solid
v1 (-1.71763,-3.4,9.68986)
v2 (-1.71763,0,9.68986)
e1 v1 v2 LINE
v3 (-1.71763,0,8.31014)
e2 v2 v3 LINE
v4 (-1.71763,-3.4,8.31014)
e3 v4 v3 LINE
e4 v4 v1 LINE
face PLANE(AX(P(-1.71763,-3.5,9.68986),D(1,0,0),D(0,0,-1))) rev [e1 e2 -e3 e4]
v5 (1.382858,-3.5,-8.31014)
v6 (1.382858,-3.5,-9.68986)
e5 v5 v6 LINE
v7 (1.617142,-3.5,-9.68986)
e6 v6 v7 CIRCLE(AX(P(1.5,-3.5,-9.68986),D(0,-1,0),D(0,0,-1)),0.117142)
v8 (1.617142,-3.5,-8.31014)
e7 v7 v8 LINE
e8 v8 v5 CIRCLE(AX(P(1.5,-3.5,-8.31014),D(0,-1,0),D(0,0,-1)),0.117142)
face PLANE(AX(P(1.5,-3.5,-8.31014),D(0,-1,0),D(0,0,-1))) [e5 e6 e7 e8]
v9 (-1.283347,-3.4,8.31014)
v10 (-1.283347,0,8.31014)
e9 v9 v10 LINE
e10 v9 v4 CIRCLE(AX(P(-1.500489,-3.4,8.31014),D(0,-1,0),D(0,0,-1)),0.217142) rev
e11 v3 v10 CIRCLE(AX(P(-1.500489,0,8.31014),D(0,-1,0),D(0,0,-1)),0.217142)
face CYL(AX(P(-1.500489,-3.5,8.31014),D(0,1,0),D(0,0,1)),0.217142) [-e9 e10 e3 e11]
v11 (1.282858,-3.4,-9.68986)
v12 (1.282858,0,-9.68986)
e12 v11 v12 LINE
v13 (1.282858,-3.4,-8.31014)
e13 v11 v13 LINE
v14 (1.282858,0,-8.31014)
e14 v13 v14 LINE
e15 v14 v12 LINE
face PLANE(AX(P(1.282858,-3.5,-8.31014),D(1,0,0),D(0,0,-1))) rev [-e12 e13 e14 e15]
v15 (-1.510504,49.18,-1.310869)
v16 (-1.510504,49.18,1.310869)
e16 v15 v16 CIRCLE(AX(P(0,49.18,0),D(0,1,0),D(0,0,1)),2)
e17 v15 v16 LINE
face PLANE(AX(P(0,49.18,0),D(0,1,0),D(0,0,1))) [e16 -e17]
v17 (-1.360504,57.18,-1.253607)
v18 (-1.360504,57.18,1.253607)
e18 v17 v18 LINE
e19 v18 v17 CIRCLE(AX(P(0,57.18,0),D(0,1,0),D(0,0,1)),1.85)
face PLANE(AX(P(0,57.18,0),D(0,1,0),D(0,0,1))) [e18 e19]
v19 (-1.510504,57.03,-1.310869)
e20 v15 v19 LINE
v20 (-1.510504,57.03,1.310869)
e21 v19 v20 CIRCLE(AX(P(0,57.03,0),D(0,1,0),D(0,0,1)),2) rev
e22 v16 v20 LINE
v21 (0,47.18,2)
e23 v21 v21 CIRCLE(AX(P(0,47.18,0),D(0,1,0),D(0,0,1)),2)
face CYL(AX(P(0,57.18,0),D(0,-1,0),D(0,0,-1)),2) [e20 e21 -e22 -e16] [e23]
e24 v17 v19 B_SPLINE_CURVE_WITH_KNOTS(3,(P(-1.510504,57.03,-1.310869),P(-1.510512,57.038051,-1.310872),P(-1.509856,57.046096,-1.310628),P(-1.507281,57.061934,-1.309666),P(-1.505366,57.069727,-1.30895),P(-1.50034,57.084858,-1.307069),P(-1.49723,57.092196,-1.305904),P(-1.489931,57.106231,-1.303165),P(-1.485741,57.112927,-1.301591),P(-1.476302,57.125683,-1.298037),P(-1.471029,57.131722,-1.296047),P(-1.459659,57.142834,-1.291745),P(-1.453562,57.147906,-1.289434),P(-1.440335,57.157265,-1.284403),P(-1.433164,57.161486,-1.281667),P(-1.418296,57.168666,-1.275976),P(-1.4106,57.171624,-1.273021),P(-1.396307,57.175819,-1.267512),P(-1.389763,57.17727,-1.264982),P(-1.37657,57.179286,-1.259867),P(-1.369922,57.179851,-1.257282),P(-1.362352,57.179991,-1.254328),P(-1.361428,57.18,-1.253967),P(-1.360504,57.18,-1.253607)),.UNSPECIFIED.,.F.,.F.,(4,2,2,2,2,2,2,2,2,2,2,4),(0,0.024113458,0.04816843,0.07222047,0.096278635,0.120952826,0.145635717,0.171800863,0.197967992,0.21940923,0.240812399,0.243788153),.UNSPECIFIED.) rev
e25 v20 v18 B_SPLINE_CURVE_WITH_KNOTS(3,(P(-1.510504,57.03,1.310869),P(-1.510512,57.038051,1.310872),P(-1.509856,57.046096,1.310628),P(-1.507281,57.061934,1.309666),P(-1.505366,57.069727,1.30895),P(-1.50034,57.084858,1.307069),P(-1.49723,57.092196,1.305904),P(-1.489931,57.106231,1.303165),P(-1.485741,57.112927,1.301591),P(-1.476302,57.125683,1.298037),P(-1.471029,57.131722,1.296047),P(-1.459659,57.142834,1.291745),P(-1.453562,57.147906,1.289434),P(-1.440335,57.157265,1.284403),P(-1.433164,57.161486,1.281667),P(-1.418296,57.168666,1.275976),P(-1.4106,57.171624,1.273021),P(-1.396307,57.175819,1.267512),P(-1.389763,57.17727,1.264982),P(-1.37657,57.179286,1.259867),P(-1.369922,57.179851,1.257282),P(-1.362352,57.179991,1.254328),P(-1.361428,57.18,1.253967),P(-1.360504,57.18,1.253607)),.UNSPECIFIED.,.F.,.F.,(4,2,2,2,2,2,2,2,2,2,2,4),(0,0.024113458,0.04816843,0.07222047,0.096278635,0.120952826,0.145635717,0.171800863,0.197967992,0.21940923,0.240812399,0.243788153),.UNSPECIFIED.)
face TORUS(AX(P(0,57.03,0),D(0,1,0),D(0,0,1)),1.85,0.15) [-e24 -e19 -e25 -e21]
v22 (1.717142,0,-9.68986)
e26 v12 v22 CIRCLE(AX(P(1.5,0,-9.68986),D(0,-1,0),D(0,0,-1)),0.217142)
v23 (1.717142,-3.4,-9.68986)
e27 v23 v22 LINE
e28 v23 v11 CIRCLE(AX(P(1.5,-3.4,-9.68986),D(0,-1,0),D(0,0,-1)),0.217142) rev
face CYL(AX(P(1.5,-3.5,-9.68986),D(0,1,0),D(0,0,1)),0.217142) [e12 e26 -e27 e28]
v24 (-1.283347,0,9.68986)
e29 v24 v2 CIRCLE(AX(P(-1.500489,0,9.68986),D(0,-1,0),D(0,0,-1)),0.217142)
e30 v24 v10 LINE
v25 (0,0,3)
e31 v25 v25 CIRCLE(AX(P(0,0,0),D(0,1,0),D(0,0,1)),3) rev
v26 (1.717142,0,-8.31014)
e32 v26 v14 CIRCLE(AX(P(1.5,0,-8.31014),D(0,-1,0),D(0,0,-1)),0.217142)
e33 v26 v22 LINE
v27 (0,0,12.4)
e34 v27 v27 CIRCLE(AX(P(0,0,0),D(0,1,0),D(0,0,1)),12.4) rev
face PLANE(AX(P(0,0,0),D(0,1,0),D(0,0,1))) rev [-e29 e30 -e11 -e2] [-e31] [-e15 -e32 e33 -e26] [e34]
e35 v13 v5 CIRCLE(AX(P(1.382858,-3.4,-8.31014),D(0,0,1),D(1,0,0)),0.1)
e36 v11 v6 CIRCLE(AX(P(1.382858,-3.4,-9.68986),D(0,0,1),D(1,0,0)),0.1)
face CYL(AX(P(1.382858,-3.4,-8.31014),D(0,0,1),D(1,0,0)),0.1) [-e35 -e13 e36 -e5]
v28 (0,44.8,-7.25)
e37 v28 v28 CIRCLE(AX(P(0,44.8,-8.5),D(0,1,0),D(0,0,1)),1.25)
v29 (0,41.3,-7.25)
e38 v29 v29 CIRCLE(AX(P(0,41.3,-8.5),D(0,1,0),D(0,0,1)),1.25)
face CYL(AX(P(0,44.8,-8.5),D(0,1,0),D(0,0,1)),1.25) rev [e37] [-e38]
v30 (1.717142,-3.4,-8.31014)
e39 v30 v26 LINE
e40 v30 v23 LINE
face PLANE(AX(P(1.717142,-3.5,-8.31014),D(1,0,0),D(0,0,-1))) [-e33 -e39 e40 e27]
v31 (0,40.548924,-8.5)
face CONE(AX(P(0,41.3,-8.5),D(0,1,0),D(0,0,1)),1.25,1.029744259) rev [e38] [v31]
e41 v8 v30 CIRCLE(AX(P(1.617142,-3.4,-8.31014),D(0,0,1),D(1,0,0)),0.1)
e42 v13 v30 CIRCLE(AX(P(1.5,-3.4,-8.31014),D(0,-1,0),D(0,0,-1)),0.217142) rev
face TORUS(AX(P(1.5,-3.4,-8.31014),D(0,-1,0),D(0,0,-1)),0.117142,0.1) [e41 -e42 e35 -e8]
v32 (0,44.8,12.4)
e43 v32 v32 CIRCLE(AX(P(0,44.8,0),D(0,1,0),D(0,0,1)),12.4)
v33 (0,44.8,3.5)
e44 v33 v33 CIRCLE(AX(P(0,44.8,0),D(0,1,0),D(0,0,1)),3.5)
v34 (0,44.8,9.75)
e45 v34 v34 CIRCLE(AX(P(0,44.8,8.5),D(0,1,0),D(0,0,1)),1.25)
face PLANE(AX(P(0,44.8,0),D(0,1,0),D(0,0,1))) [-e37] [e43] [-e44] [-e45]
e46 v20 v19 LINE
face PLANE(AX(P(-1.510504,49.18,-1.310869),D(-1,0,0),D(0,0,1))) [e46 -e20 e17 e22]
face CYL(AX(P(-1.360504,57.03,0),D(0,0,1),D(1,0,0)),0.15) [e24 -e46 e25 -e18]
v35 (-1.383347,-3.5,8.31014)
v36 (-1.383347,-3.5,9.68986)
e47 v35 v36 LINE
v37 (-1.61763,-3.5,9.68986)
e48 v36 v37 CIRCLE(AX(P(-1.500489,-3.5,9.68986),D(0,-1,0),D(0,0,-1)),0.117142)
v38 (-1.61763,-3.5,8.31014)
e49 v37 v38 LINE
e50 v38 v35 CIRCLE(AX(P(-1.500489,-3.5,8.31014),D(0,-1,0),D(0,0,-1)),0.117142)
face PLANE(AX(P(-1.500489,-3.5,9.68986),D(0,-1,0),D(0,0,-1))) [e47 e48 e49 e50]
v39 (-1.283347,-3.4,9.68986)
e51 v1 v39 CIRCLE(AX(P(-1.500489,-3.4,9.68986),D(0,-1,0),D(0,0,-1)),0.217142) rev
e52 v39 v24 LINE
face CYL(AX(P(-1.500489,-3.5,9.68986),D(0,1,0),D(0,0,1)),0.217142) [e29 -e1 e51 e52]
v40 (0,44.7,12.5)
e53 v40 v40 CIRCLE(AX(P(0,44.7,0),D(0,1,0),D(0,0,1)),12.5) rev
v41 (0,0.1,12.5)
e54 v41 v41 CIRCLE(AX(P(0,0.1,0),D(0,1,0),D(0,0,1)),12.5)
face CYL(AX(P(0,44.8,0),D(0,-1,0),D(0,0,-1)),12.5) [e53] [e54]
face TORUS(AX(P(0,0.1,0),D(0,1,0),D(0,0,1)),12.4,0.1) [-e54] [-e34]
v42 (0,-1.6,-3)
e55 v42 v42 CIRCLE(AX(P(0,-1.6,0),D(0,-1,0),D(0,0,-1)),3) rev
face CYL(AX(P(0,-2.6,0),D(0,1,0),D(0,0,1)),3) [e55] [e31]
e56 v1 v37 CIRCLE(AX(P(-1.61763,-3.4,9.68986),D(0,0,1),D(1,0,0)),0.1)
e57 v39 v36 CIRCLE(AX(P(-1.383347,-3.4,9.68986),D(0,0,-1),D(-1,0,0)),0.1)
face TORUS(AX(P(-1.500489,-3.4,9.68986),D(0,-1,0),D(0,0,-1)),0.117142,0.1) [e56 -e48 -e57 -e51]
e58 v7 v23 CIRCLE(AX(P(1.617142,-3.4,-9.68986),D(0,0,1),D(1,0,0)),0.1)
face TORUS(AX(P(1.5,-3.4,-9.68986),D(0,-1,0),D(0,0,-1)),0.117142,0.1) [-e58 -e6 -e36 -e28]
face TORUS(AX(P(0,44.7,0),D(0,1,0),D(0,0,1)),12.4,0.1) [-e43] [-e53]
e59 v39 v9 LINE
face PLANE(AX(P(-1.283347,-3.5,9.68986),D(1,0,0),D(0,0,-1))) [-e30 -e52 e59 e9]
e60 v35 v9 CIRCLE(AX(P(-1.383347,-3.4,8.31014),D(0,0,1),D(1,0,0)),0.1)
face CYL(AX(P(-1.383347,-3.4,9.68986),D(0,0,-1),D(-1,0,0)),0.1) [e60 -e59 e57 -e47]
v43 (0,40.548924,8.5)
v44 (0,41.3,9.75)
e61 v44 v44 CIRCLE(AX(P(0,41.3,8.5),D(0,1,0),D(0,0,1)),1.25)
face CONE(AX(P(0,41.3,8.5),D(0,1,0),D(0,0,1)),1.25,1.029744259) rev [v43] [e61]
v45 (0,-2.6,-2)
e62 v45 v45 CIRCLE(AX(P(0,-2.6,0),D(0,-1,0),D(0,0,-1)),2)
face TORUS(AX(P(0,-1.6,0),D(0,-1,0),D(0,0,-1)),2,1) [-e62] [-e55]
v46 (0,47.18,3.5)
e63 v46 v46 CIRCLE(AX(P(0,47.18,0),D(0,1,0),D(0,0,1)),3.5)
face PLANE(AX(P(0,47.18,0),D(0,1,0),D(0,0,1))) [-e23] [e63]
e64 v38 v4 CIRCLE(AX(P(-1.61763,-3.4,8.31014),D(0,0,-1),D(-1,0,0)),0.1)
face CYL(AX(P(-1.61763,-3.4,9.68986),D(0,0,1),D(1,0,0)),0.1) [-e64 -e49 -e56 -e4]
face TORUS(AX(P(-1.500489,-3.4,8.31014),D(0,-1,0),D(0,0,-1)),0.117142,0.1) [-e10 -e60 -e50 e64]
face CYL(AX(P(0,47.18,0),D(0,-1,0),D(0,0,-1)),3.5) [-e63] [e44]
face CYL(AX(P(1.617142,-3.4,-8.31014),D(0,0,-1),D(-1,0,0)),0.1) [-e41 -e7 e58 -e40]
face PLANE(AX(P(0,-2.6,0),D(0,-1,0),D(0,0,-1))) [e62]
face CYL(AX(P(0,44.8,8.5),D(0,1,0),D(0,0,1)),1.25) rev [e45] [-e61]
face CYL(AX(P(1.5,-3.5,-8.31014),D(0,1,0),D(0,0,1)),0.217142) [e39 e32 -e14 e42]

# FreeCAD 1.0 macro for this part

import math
import FreeCAD as App
import Part
import Sketcher

V = App.Vector


def edges_at(feature, points):
    """Names of the edges that pass closest to the given points."""
    edges = feature.Shape.Edges
    near = lambda p: min(range(len(edges)), key=lambda i: edges[i].distToShape(Part.Vertex(*p))[0])
    return sorted({f"Edge{near(p) + 1}" for p in points})

doc = App.newDocument("Part")
body = doc.addObject("PartDesign::Body", "Body")

# Sketch on XZ plane
sketch1 = body.newObject("Sketcher::SketchObject", "Sketch")
sketch1.AttachmentSupport = (doc.getObject("XZ_Plane"), [""])
sketch1.MapMode = "FlatFace"
sketch1.addGeometry(Part.Circle(V(0, 0, 0), V(0, 0, 1), 12), False)
sketch1.addConstraint([
    Sketcher.Constraint("Coincident", 0, 3, -1, 1),
    Sketcher.Constraint("Diameter", 0, 25.0),
])
pad1 = body.newObject("PartDesign::Pad", "Pad")
pad1.Profile = sketch1
pad1.Length = 44.8
pad1.Reversed = True

# Sketch on XZ plane
sketch2 = body.newObject("Sketcher::SketchObject", "Sketch001")
sketch2.AttachmentSupport = (doc.getObject("XZ_Plane"), [""])
sketch2.MapMode = "FlatFace"
sketch2.addGeometry([
    Part.LineSegment(V(-1.28, 8.31, 0), V(-1.28, 9.69, 0)),  # 0
    Part.ArcOfCircle(Part.Circle(V(-1.5, 9.69, 0), V(0, 0, 1), 0.22), math.radians(0), math.radians(180)),  # 1
    Part.LineSegment(V(-1.72, 9.69, 0), V(-1.72, 8.31, 0)),  # 2
    Part.ArcOfCircle(Part.Circle(V(-1.5, 8.31, 0), V(0, 0, 1), 0.22), math.radians(-180), math.radians(0)),  # 3
    Part.LineSegment(V(1.72, -9.69, 0), V(1.72, -8.31, 0)),  # 4
    Part.ArcOfCircle(Part.Circle(V(1.5, -8.31, 0), V(0, 0, 1), 0.22), math.radians(0), math.radians(180)),  # 5
    Part.LineSegment(V(1.28, -8.31, 0), V(1.28, -9.69, 0)),  # 6
    Part.ArcOfCircle(Part.Circle(V(1.5, -9.69, 0), V(0, 0, 1), 0.22), math.radians(-180), math.radians(0)),  # 7
], False)
sketch2.addConstraint([
    Sketcher.Constraint("Tangent", 0, 2, 1, 1),
    Sketcher.Constraint("Tangent", 1, 2, 2, 1),
    Sketcher.Constraint("Tangent", 2, 2, 3, 1),
    Sketcher.Constraint("Tangent", 3, 2, 0, 1),
    Sketcher.Constraint("Tangent", 4, 2, 5, 1),
    Sketcher.Constraint("Tangent", 5, 2, 6, 1),
    Sketcher.Constraint("Tangent", 6, 2, 7, 1),
    Sketcher.Constraint("Tangent", 7, 2, 4, 1),
    Sketcher.Constraint("Vertical", 0),
    Sketcher.Constraint("Vertical", 2),
    Sketcher.Constraint("Vertical", 4),
    Sketcher.Constraint("Vertical", 6),
    Sketcher.Constraint("Equal", 3, 5),
    Sketcher.Constraint("Equal", 2, 4),
    Sketcher.Constraint("DistanceY", 5, 3, 1, 3, 18.0),
    Sketcher.Constraint("DistanceX", -1, 1, 5, 3, 1.5),
    Sketcher.Constraint("Radius", 1, 0.217142),
    Sketcher.Constraint("DistanceY", 0, 1, 0, 2, 1.379721),
    Sketcher.Constraint("DistanceX", 1, 3, -1, 1, 1.500489),
    Sketcher.Constraint("DistanceY", -1, 1, 1, 3, 9.68986),
])
pad2 = body.newObject("PartDesign::Pad", "Pad001")
pad2.Profile = sketch2
pad2.Length = 3.5
doc.recompute()

fillet = body.newObject("PartDesign::Fillet", "Fillet")
fillet.Base = (pad2, edges_at(pad2, [
    (1.717, -3.5, -9),
    (1.5, -3.5, -8.093),
    (1.283, -3.5, -9),
    (1.5, -3.5, -9.907),
    (-1.283, -3.5, 9),
    (-1.5, -3.5, 9.907),
    (-1.718, -3.5, 9),
    (-1.5, -3.5, 8.093),
    (0, 0, -12.5),
    (0, 44.8, -12.5),
]))
fillet.Radius = 0.1

# Sketch on XZ plane
sketch3 = body.newObject("Sketcher::SketchObject", "Sketch002")
sketch3.AttachmentSupport = (doc.getObject("XZ_Plane"), [""])
sketch3.MapMode = "FlatFace"
sketch3.addGeometry(Part.Circle(V(0, 0, 0), V(0, 0, 1), 3), False)
sketch3.addConstraint([
    Sketcher.Constraint("Coincident", 0, 3, -1, 1),
    Sketcher.Constraint("Diameter", 0, 6.0),
])
pad3 = body.newObject("PartDesign::Pad", "Pad002")
pad3.Profile = sketch3
pad3.Length = 2.6
doc.recompute()

fillet2 = body.newObject("PartDesign::Fillet", "Fillet001")
fillet2.Base = (pad3, edges_at(pad3, [(0, -2.6, -3)]))
fillet2.Radius = 1

# Sketch on XZ plane
sketch4 = body.newObject("Sketcher::SketchObject", "Sketch003")
sketch4.AttachmentSupport = (doc.getObject("XZ_Plane"), [""])
sketch4.MapMode = "FlatFace"
sketch4.AttachmentOffset = App.Placement(V(0, 0, -44.8), App.Rotation())
sketch4.addGeometry([
    Part.Circle(V(0, 8.5, 0), V(0, 0, 1), 1.2),
    Part.Circle(V(0, -8.5, 0), V(0, 0, 1), 1.2),
], False)
sketch4.addConstraint([
    Sketcher.Constraint("Equal", 0, 1),
    Sketcher.Constraint("Symmetric", 0, 3, 1, 3, -1, 1),
    Sketcher.Constraint("PointOnObject", 0, 3, -2),
    Sketcher.Constraint("Diameter", 0, 2.5),
    Sketcher.Constraint("DistanceY", 1, 3, 0, 3, 17.0),
])
doc.recompute()
hole = body.newObject("PartDesign::Hole", "Hole")
hole.Profile = sketch4
hole.ThreadType = "None"
hole.Diameter = 2.5
hole.DepthType = "Dimension"
hole.Depth = 3.5
hole.DrillPoint = "Angled"
hole.DrillPointAngle = 118
hole.Reversed = True

# Sketch on XZ plane
sketch5 = body.newObject("Sketcher::SketchObject", "Sketch004")
sketch5.AttachmentSupport = (doc.getObject("XZ_Plane"), [""])
sketch5.MapMode = "FlatFace"
sketch5.AttachmentOffset = App.Placement(V(0, 0, -44.8), App.Rotation())
sketch5.addGeometry([
    Part.Circle(V(0, 0, 0), V(0, 0, 1), 3.5),
    Part.Circle(V(0, 0, 0), V(0, 0, 1), 2),
], False)
sketch5.addConstraint([
    Sketcher.Constraint("Coincident", 0, 3, -1, 1),
    Sketcher.Constraint("Coincident", 1, 3, -1, 1),
    Sketcher.Constraint("Diameter", 0, 7.0),
    Sketcher.Constraint("Diameter", 1, 4.0),
])
pad4 = body.newObject("PartDesign::Pad", "Pad003")
pad4.Profile = sketch5
pad4.Length = 2.38
pad4.Reversed = True

# Sketch on XZ plane
sketch6 = body.newObject("Sketcher::SketchObject", "Sketch005")
sketch6.AttachmentSupport = (doc.getObject("XZ_Plane"), [""])
sketch6.MapMode = "FlatFace"
sketch6.AttachmentOffset = App.Placement(V(0, 0, -44.8), App.Rotation())
sketch6.addGeometry(Part.Circle(V(0, 0, 0), V(0, 0, 1), 2), False)
sketch6.addConstraint([
    Sketcher.Constraint("Coincident", 0, 3, -1, 1),
    Sketcher.Constraint("Diameter", 0, 4.0),
])
pad5 = body.newObject("PartDesign::Pad", "Pad004")
pad5.Profile = sketch6
pad5.Length = 12.38
pad5.Reversed = True

# Sketch on XZ plane
sketch7 = body.newObject("Sketcher::SketchObject", "Sketch006")
sketch7.AttachmentSupport = (doc.getObject("XZ_Plane"), [""])
sketch7.MapMode = "FlatFace"
sketch7.AttachmentOffset = App.Placement(V(0, 0, -49.18), App.Rotation())
sketch7.addGeometry([
    Part.LineSegment(V(-1.5, 1.3, 0), V(-1.5, -1.3, 0)),
    Part.ArcOfCircle(Part.Circle(V(0, 0, 0), V(0, 0, 1), 2), math.radians(139), math.radians(221)),
], False)
sketch7.addConstraint([
    Sketcher.Constraint("Coincident", 0, 1, 1, 1),
    Sketcher.Constraint("Coincident", 1, 2, 0, 2),
    Sketcher.Constraint("Vertical", 0),
    Sketcher.Constraint("Coincident", 1, 3, -1, 1),
    Sketcher.Constraint("Radius", 1, 2.0),
    Sketcher.Constraint("DistanceY", 0, 2, 0, 1, 2.621739),
])
pocket1 = body.newObject("PartDesign::Pocket", "Pocket")
pocket1.Profile = sketch7
pocket1.Length = 8
doc.recompute()

fillet3 = body.newObject("PartDesign::Fillet", "Fillet002")
fillet3.Base = (pocket1, edges_at(pocket1, [(1.82, 57.18, -0.83), (-1.511, 57.18, 0)]))
fillet3.Radius = 0.15

doc.recompute()
